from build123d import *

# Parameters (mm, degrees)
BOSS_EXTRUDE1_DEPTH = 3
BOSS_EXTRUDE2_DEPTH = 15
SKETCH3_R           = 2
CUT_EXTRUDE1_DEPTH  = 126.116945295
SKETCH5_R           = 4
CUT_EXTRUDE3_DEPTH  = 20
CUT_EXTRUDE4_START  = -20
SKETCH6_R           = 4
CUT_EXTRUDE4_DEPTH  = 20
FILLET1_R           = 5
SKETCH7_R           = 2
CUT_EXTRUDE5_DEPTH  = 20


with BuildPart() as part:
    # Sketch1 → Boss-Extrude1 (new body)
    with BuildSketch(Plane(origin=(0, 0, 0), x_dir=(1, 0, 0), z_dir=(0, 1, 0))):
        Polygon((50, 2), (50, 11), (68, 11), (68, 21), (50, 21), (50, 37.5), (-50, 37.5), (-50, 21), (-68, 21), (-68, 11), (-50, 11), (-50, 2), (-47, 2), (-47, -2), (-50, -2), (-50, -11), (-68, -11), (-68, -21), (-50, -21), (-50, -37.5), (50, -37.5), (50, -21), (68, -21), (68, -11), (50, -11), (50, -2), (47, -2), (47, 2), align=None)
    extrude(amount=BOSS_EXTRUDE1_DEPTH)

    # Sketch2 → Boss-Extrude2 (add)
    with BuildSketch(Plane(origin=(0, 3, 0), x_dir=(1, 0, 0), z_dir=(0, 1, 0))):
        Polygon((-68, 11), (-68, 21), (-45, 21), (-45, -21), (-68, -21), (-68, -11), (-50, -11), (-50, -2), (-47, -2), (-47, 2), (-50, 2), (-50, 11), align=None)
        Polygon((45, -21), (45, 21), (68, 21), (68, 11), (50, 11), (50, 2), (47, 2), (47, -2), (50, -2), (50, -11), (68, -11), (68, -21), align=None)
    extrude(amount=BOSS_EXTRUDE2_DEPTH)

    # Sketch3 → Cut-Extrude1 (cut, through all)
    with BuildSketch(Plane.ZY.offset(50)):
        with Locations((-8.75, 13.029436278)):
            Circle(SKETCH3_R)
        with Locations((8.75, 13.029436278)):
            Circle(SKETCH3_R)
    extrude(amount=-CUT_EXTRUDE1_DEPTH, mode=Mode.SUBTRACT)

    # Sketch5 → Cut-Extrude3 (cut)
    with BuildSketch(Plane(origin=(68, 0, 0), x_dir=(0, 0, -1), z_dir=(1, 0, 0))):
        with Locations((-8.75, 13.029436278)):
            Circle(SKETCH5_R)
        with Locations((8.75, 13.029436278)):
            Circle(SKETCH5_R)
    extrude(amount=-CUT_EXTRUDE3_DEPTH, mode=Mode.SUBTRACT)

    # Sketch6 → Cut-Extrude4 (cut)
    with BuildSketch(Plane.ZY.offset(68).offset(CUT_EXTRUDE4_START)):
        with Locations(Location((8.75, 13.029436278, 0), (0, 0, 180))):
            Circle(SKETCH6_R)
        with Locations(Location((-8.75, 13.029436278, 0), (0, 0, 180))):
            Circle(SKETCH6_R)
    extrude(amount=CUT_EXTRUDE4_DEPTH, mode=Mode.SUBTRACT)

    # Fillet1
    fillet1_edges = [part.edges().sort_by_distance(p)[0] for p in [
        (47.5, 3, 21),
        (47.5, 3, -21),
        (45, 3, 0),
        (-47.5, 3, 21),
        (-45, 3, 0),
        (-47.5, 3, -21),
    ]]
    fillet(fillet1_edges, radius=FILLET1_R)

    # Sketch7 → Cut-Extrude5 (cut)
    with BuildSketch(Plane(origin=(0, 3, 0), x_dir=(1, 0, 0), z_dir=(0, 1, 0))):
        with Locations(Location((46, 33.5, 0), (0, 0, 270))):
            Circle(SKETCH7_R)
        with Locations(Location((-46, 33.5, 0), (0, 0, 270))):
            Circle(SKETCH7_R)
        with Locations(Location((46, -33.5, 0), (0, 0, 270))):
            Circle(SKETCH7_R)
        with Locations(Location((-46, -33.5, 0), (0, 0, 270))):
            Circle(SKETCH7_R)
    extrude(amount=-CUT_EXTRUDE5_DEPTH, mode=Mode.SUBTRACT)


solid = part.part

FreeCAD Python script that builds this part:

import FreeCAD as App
import Part
import Sketcher
from FreeCAD import Vector
Q = App.Units.Quantity


def edges_at(feature, points):
    """Names of the edges that pass closest to the given points."""
    edges = feature.Shape.Edges
    near = lambda p: min(range(len(edges)), key=lambda i: edges[i].distToShape(Part.Vertex(*p))[0])
    return sorted({f"Edge{near(p) + 1}" for p in points})


def add_polygon(sketch, points):
    """Adds a closed chain of lines whose ends are joined by coincident constraints."""
    first, n = sketch.GeometryCount, len(points)
    for a, b in zip(points, points[1:] + points[:1]):
        sketch.addGeometry(Part.LineSegment(App.Vector(*a, 0), App.Vector(*b, 0)), False)
    for i in range(n):
        sketch.addConstraint(Sketcher.Constraint("Coincident", first + i, 2, first + (i + 1) % n, 1))

doc = App.newDocument("Part")
body = doc.addObject("PartDesign::Body", "Body")

sketch1 = body.newObject("Sketcher::SketchObject", "Sketch")
sketch1.AttachmentSupport = (doc.getObject("XZ_Plane"), [""])
sketch1.MapMode = "FlatFace"
add_polygon(sketch1, [(50, -2), (50, -11), (68, -11), (68, -21), (50, -21), (50, -37.5), (-50, -37.5), (-50, -21), (-68, -21), (-68, -11), (-50, -11), (-50, -2), (-47, -2), (-47, 2), (-50, 2), (-50, 11), (-68, 11), (-68, 21), (-50, 21), (-50, 37.5), (50, 37.5), (50, 21), (68, 21), (68, 11), (50, 11), (50, 2), (47, 2), (47, -2)])
sketch1.addConstraint(Sketcher.Constraint("Vertical", 0))
sketch1.addConstraint(Sketcher.Constraint("Horizontal", 1))
sketch1.addConstraint(Sketcher.Constraint("Vertical", 2))
sketch1.addConstraint(Sketcher.Constraint("Horizontal", 3))
sketch1.addConstraint(Sketcher.Constraint("Vertical", 4))
sketch1.addConstraint(Sketcher.Constraint("Horizontal", 5))
sketch1.addConstraint(Sketcher.Constraint("Vertical", 6))
sketch1.addConstraint(Sketcher.Constraint("Horizontal", 7))
sketch1.addConstraint(Sketcher.Constraint("Vertical", 8))
sketch1.addConstraint(Sketcher.Constraint("Horizontal", 9))
sketch1.addConstraint(Sketcher.Constraint("Vertical", 10))
sketch1.addConstraint(Sketcher.Constraint("Horizontal", 11))
sketch1.addConstraint(Sketcher.Constraint("Vertical", 12))
sketch1.addConstraint(Sketcher.Constraint("Horizontal", 13))
sketch1.addConstraint(Sketcher.Constraint("Vertical", 14))
sketch1.addConstraint(Sketcher.Constraint("Horizontal", 15))
sketch1.addConstraint(Sketcher.Constraint("Vertical", 16))
sketch1.addConstraint(Sketcher.Constraint("Horizontal", 17))
sketch1.addConstraint(Sketcher.Constraint("Vertical", 18))
sketch1.addConstraint(Sketcher.Constraint("Horizontal", 19))
sketch1.addConstraint(Sketcher.Constraint("Vertical", 20))
sketch1.addConstraint(Sketcher.Constraint("Horizontal", 21))
sketch1.addConstraint(Sketcher.Constraint("Vertical", 22))
sketch1.addConstraint(Sketcher.Constraint("Horizontal", 23))
sketch1.addConstraint(Sketcher.Constraint("Vertical", 24))
sketch1.addConstraint(Sketcher.Constraint("Horizontal", 25))
sketch1.addConstraint(Sketcher.Constraint("Vertical", 26))
sketch1.addConstraint(Sketcher.Constraint("Horizontal", 27))
sketch1.addConstraint(Sketcher.Constraint("Symmetric", 0, 2, 14, 2, -1, 1))
sketch1.addConstraint(Sketcher.Constraint("Symmetric", 2, 2, 16, 2, -1, 1))
sketch1.addConstraint(Sketcher.Constraint("Symmetric", 4, 2, 18, 2, -1, 1))
sketch1.addConstraint(Sketcher.Constraint("Symmetric", 6, 2, 20, 2, -1, 1))
sketch1.addConstraint(Sketcher.Constraint("Symmetric", 8, 2, 22, 2, -1, 1))
sketch1.addConstraint(Sketcher.Constraint("Symmetric", 10, 2, 24, 2, -1, 1))
sketch1.addConstraint(Sketcher.Constraint("Symmetric", 12, 2, 26, 2, -1, 1))
sketch1.addConstraint(Sketcher.Constraint("Symmetric", 3, 2, 6, 2, -2))
sketch1.addConstraint(Sketcher.Constraint("Symmetric", 1, 2, 8, 2, -2))
sketch1.addConstraint(Sketcher.Constraint("Symmetric", 13, 2, 24, 2, -2))
sketch1.addConstraint(Sketcher.Constraint("Vertical", 0, 2, 3, 2))
sketch1.addConstraint(Sketcher.Constraint("DistanceX", 1, 1, 1, 2, Q("18 mm")))
sketch1.addConstraint(Sketcher.Constraint("DistanceX", 5, 2, 5, 1, Q("100 mm")))
sketch1.addConstraint(Sketcher.Constraint("DistanceX", 11, 1, 11, 2, Q("3 mm")))
sketch1.addConstraint(Sketcher.Constraint("DistanceY", 0, 2, 0, 1, Q("9 mm")))
sketch1.addConstraint(Sketcher.Constraint("DistanceY", 2, 2, 2, 1, Q("10 mm")))
sketch1.addConstraint(Sketcher.Constraint("DistanceY", 12, 1, 12, 2, Q("4 mm")))
sketch1.addConstraint(Sketcher.Constraint("DistanceY", 4, 2, 4, 1, Q("16.5 mm")))
pad1 = body.newObject("PartDesign::Pad", "Pad")
pad1.Profile = sketch1
pad1.Length = 3
pad1.Reversed = True

sketch2 = body.newObject("Sketcher::SketchObject", "Sketch001")
sketch2.AttachmentSupport = (doc.getObject("XZ_Plane"), [""])
sketch2.MapMode = "FlatFace"
sketch2.AttachmentOffset = App.Placement(Vector(0, 0, -3), App.Rotation())
add_polygon(sketch2, [(-68, -21), (-68, -11), (-50, -11), (-50, -2), (-47, -2), (-47, 2), (-50, 2), (-50, 11), (-68, 11), (-68, 21), (-45, 21), (-45, -21)])
add_polygon(sketch2, [(45, -21), (45, 21), (68, 21), (68, 11), (50, 11), (50, 2), (47, 2), (47, -2), (50, -2), (50, -11), (68, -11), (68, -21)])
sketch2.addConstraint(Sketcher.Constraint("Vertical", 0))
sketch2.addConstraint(Sketcher.Constraint("Horizontal", 1))
sketch2.addConstraint(Sketcher.Constraint("Vertical", 2))
sketch2.addConstraint(Sketcher.Constraint("Horizontal", 3))
sketch2.addConstraint(Sketcher.Constraint("Vertical", 4))
sketch2.addConstraint(Sketcher.Constraint("Horizontal", 5))
sketch2.addConstraint(Sketcher.Constraint("Vertical", 6))
sketch2.addConstraint(Sketcher.Constraint("Horizontal", 7))
sketch2.addConstraint(Sketcher.Constraint("Vertical", 8))
sketch2.addConstraint(Sketcher.Constraint("Horizontal", 9))
sketch2.addConstraint(Sketcher.Constraint("Vertical", 10))
sketch2.addConstraint(Sketcher.Constraint("Horizontal", 11))
sketch2.addConstraint(Sketcher.Constraint("Vertical", 12))
sketch2.addConstraint(Sketcher.Constraint("Horizontal", 13))
sketch2.addConstraint(Sketcher.Constraint("Vertical", 14))
sketch2.addConstraint(Sketcher.Constraint("Horizontal", 15))
sketch2.addConstraint(Sketcher.Constraint("Vertical", 16))
sketch2.addConstraint(Sketcher.Constraint("Horizontal", 17))
sketch2.addConstraint(Sketcher.Constraint("Vertical", 18))
sketch2.addConstraint(Sketcher.Constraint("Horizontal", 19))
sketch2.addConstraint(Sketcher.Constraint("Vertical", 20))
sketch2.addConstraint(Sketcher.Constraint("Horizontal", 21))
sketch2.addConstraint(Sketcher.Constraint("Vertical", 22))
sketch2.addConstraint(Sketcher.Constraint("Horizontal", 23))
sketch2.addConstraint(Sketcher.Constraint("Symmetric", 10, 2, 12, 2, -1, 1))
sketch2.addConstraint(Sketcher.Constraint("Symmetric", 0, 2, 14, 2, -1, 1))
sketch2.addConstraint(Sketcher.Constraint("Symmetric", 2, 2, 16, 2, -1, 1))
sketch2.addConstraint(Sketcher.Constraint("Symmetric", 4, 2, 18, 2, -1, 1))
sketch2.addConstraint(Sketcher.Constraint("Symmetric", 6, 2, 20, 2, -1, 1))
sketch2.addConstraint(Sketcher.Constraint("Symmetric", 8, 2, 22, 2, -1, 1))
sketch2.addConstraint(Sketcher.Constraint("Symmetric", 8, 2, 13, 2, -2))
sketch2.addConstraint(Sketcher.Constraint("Symmetric", 6, 2, 15, 2, -2))
sketch2.addConstraint(Sketcher.Constraint("Horizontal", 5, 2, 16, 2))
sketch2.addConstraint(Sketcher.Constraint("DistanceX", 1, 1, 1, 2, Q("18 mm")))
sketch2.addConstraint(Sketcher.Constraint("DistanceX", 3, 1, 3, 2, Q("3 mm")))
sketch2.addConstraint(Sketcher.Constraint("DistanceX", 9, 1, 9, 2, Q("23 mm")))
sketch2.addConstraint(Sketcher.Constraint("DistanceY", 0, 1, 0, 2, Q("10 mm")))
sketch2.addConstraint(Sketcher.Constraint("DistanceY", 2, 1, 2, 2, Q("9 mm")))
sketch2.addConstraint(Sketcher.Constraint("DistanceY", 4, 1, 4, 2, Q("4 mm")))
sketch2.addConstraint(Sketcher.Constraint("DistanceX", 0, 2, -1, 1, Q("68 mm")))
pad2 = body.newObject("PartDesign::Pad", "Pad001")
pad2.Profile = sketch2
pad2.Length = 15
pad2.Reversed = True

sketch3 = body.newObject("Sketcher::SketchObject", "Sketch002")
sketch3.AttachmentSupport = (doc.getObject("YZ_Plane"), [""])
sketch3.MapMode = "FlatFace"
sketch3.AttachmentOffset = App.Placement(Vector(0, 0, -50), App.Rotation())
sketch3.addGeometry(Part.Circle(Vector(13, -8.8, 0), Vector(0, 0, 1), 2), False)
sketch3.addGeometry(Part.Circle(Vector(13, 8.8, 0), Vector(0, 0, 1), 2), False)
sketch3.addConstraint(Sketcher.Constraint("Equal", 0, 1))
sketch3.addConstraint(Sketcher.Constraint("Symmetric", 0, 3, 1, 3, -1))
sketch3.addConstraint(Sketcher.Constraint("Diameter", 0, Q("4 mm")))
sketch3.addConstraint(Sketcher.Constraint("DistanceY", 0, 3, 1, 3, Q("17.5 mm")))
sketch3.addConstraint(Sketcher.Constraint("DistanceX", -1, 1, 0, 3, Q("13.029436 mm")))
pocket1 = body.newObject("PartDesign::Pocket", "Pocket")
pocket1.Profile = sketch3
pocket1.Type = "ThroughAll"
pocket1.Reversed = True

sketch4 = body.newObject("Sketcher::SketchObject", "Sketch003")
sketch4.AttachmentSupport = (doc.getObject("YZ_Plane"), [""])
sketch4.MapMode = "FlatFace"
sketch4.AttachmentOffset = App.Placement(Vector(0, 0, 68), App.Rotation())
sketch4.addGeometry(Part.Circle(Vector(13, 8.8, 0), Vector(0, 0, 1), 4), False)
sketch4.addGeometry(Part.Circle(Vector(13, -8.8, 0), Vector(0, 0, 1), 4), False)
sketch4.addConstraint(Sketcher.Constraint("Equal", 0, 1))
sketch4.addConstraint(Sketcher.Constraint("Symmetric", 0, 3, 1, 3, -1))
sketch4.addConstraint(Sketcher.Constraint("Diameter", 0, Q("8 mm")))
sketch4.addConstraint(Sketcher.Constraint("DistanceY", 1, 3, 0, 3, Q("17.5 mm")))
sketch4.addConstraint(Sketcher.Constraint("DistanceX", -1, 1, 0, 3, Q("13.029436 mm")))
pocket2 = body.newObject("PartDesign::Pocket", "Pocket001")
pocket2.Profile = sketch4
pocket2.Length = 20

sketch5 = body.newObject("Sketcher::SketchObject", "Sketch004")
sketch5.AttachmentSupport = (doc.getObject("YZ_Plane"), [""])
sketch5.MapMode = "FlatFace"
sketch5.AttachmentOffset = App.Placement(Vector(0, 0, -48), App.Rotation())
sketch5.addGeometry(Part.Circle(Vector(13, 8.8, 0), Vector(0, 0, 1), 4), False)
sketch5.addGeometry(Part.Circle(Vector(13, -8.8, 0), Vector(0, 0, 1), 4), False)
sketch5.addConstraint(Sketcher.Constraint("Equal", 0, 1))
sketch5.addConstraint(Sketcher.Constraint("Symmetric", 0, 3, 1, 3, -1))
sketch5.addConstraint(Sketcher.Constraint("Diameter", 0, Q("8 mm")))
sketch5.addConstraint(Sketcher.Constraint("DistanceY", 1, 3, 0, 3, Q("17.5 mm")))
sketch5.addConstraint(Sketcher.Constraint("DistanceX", -1, 1, 0, 3, Q("13.029436 mm")))
pocket3 = body.newObject("PartDesign::Pocket", "Pocket002")
pocket3.Profile = sketch5
pocket3.Length = 20
doc.recompute()

fillet = body.newObject("PartDesign::Fillet", "Fillet")
fillet.Base = (pocket3, edges_at(pocket3, [
    (47.5, 3, 21),
    (47.5, 3, -21),
    (45, 3, 0),
    (-47.5, 3, 21),
    (-45, 3, 0),
    (-47.5, 3, -21),
]))
fillet.Radius = 5

sketch6 = body.newObject("Sketcher::SketchObject", "Sketch005")
sketch6.AttachmentSupport = (doc.getObject("XZ_Plane"), [""])
sketch6.MapMode = "FlatFace"
sketch6.AttachmentOffset = App.Placement(Vector(0, 0, -3), App.Rotation())
sketch6.addGeometry(Part.Circle(Vector(46, -33.5, 0), Vector(0, 0, 1), 2), False)
sketch6.addGeometry(Part.Circle(Vector(-46, -33.5, 0), Vector(0, 0, 1), 2), False)
sketch6.addGeometry(Part.Circle(Vector(46, 33.5, 0), Vector(0, 0, 1), 2), False)
sketch6.addGeometry(Part.Circle(Vector(-46, 33.5, 0), Vector(0, 0, 1), 2), False)
sketch6.addConstraint(Sketcher.Constraint("Equal", 0, 1))
sketch6.addConstraint(Sketcher.Constraint("Equal", 1, 2))
sketch6.addConstraint(Sketcher.Constraint("Equal", 2, 3))
sketch6.addConstraint(Sketcher.Constraint("Symmetric", 1, 3, 2, 3, -1, 1))
sketch6.addConstraint(Sketcher.Constraint("Symmetric", 0, 3, 3, 3, -1, 1))
sketch6.addConstraint(Sketcher.Constraint("Symmetric", 0, 3, 1, 3, -2))
sketch6.addConstraint(Sketcher.Constraint("Diameter", 0, Q("4 mm")))
sketch6.addConstraint(Sketcher.Constraint("DistanceX", -1, 1, 0, 3, Q("46 mm")))
sketch6.addConstraint(Sketcher.Constraint("DistanceY", 0, 3, 2, 3, Q("67 mm")))
pocket4 = body.newObject("PartDesign::Pocket", "Pocket003")
pocket4.Profile = sketch6
pocket4.Length = 20
pocket4.Reversed = True

doc.recompute()
